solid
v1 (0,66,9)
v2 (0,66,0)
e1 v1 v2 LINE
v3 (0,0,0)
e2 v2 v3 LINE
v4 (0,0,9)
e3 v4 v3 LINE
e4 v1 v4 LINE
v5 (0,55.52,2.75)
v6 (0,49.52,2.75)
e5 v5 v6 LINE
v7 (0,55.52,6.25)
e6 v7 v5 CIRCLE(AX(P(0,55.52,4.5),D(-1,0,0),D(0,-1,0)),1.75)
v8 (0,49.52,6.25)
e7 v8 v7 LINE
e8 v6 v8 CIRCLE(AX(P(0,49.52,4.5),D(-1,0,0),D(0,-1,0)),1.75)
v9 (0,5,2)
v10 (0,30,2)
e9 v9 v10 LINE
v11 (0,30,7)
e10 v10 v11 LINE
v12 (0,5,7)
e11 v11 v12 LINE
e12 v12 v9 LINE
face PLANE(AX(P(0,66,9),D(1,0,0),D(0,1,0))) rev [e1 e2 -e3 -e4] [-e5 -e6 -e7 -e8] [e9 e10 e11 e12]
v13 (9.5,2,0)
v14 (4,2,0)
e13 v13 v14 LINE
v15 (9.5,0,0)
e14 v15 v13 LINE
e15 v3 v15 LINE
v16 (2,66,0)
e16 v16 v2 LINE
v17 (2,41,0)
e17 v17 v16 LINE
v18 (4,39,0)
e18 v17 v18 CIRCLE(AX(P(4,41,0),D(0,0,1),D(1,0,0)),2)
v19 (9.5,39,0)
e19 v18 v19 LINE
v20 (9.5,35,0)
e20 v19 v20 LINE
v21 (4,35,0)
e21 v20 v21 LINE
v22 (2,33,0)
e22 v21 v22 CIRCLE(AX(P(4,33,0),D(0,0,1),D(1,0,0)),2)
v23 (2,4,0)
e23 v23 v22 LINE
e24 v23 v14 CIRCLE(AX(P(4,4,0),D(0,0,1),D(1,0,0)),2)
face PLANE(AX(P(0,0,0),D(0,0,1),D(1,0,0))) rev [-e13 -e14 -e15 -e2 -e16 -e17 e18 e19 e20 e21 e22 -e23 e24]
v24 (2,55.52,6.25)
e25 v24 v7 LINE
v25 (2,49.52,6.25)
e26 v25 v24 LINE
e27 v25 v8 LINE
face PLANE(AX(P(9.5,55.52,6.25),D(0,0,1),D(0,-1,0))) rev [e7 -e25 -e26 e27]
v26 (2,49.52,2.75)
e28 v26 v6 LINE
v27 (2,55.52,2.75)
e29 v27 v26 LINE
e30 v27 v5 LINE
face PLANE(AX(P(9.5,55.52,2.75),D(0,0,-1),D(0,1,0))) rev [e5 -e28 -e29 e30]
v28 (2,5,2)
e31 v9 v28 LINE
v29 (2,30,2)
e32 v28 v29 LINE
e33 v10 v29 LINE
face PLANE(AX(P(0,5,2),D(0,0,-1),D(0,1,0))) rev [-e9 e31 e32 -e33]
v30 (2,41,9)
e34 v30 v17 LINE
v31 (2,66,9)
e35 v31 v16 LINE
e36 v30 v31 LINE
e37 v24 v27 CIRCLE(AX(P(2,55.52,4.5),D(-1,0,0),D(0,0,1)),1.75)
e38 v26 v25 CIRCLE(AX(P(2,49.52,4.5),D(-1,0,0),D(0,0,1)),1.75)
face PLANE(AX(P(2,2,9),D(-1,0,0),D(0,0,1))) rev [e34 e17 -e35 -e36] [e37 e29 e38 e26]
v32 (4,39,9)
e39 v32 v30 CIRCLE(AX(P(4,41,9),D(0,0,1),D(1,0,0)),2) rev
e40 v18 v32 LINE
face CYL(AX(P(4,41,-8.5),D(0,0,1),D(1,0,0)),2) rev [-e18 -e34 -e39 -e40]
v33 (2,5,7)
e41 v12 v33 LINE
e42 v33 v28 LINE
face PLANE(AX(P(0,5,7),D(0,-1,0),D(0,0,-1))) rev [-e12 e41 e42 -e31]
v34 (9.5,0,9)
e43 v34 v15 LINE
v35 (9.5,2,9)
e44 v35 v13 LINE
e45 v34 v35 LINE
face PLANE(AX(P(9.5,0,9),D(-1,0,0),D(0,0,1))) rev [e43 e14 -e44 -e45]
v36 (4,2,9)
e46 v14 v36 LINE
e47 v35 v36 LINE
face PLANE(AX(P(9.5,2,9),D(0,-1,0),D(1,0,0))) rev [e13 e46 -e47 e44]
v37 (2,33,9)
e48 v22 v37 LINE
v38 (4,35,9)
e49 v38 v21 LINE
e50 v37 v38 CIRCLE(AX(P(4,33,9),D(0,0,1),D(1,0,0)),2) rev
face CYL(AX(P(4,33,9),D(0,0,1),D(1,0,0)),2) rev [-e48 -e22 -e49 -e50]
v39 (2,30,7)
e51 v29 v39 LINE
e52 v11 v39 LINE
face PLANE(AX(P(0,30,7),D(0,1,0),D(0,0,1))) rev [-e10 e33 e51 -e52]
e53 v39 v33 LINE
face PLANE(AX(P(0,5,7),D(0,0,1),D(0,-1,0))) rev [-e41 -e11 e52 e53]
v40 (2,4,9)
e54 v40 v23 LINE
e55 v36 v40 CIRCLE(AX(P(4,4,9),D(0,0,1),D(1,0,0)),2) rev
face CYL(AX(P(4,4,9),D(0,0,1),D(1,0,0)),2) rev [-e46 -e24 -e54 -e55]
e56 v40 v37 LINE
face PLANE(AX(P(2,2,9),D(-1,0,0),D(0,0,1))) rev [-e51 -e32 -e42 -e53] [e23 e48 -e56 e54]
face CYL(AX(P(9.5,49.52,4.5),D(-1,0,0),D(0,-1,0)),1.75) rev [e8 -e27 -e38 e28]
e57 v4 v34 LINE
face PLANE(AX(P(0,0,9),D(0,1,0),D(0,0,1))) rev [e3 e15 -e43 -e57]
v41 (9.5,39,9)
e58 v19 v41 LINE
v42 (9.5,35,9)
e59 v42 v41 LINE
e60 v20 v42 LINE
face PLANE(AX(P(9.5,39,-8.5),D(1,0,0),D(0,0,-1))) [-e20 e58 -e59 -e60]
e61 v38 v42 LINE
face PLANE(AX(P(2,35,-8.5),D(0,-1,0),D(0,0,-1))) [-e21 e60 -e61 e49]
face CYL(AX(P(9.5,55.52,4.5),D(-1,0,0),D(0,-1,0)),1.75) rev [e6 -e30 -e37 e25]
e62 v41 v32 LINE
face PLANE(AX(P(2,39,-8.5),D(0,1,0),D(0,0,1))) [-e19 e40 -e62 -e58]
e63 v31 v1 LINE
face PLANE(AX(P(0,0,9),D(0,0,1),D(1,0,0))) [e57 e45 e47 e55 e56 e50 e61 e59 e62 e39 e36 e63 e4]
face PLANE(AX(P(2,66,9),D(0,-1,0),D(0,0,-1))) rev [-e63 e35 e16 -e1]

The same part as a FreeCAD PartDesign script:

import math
import FreeCAD as App
import Part
import Sketcher
from FreeCAD import Vector


def edges_at(feature, points):
    """Names of the edges that pass closest to the given points."""
    edges = feature.Shape.Edges
    near = lambda p: min(range(len(edges)), key=lambda i: edges[i].distToShape(Part.Vertex(*p))[0])
    return sorted({f"Edge{near(p) + 1}" for p in points})


def add_polygon(sketch, points):
    """Adds a closed chain of lines whose ends are joined by coincident constraints."""
    first, n = sketch.GeometryCount, len(points)
    for a, b in zip(points, points[1:] + points[:1]):
        sketch.addGeometry(Part.LineSegment(App.Vector(*a, 0), App.Vector(*b, 0)), False)
    for i in range(n):
        sketch.addConstraint(Sketcher.Constraint("Coincident", first + i, 2, first + (i + 1) % n, 1))

doc = App.newDocument("Part")
body = doc.addObject("PartDesign::Body", "Body")

# Sketch on XY plane
sketch1 = body.newObject("Sketcher::SketchObject", "Sketch")
sketch1.AttachmentSupport = (doc.getObject("XY_Plane"), [""])
sketch1.MapMode = "FlatFace"
add_polygon(sketch1, [(0, 0), (9.5, 0), (9.5, 2), (2, 2), (2, 66), (0, 66)])  # lines 0-5
sketch1.addConstraint([
    Sketcher.Constraint("Horizontal", 0),
    Sketcher.Constraint("Vertical", 1),
    Sketcher.Constraint("Horizontal", 2),
    Sketcher.Constraint("Vertical", 3),
    Sketcher.Constraint("Horizontal", 4),
    Sketcher.Constraint("Vertical", 5),
    Sketcher.Constraint("Coincident", 5, 2, -1, 1),
    Sketcher.Constraint("Equal", 4, 1),
    Sketcher.Constraint("DistanceX", 4, 2, 4, 1, 2.0),
    Sketcher.Constraint("DistanceY", 3, 1, 3, 2, 64.0),
    Sketcher.Constraint("DistanceX", 0, 1, 0, 2, 9.5),
])
pad1 = body.newObject("PartDesign::Pad", "Pad")
pad1.Profile = sketch1
pad1.Length = 9

# Sketch on YZ plane
sketch2 = body.newObject("Sketcher::SketchObject", "Sketch001")
sketch2.AttachmentSupport = (doc.getObject("YZ_Plane"), [""])
sketch2.MapMode = "FlatFace"
sketch2.addGeometry([
    Part.LineSegment(Vector(49.52, 6.25, 0), Vector(55.52, 6.25, 0)),
    Part.ArcOfCircle(Part.Circle(Vector(55.52, 4.5, 0), Vector(0, 0, 1), 1.75), math.radians(-90), math.radians(90)),
    Part.LineSegment(Vector(55.52, 2.75, 0), Vector(49.52, 2.75, 0)),
    Part.ArcOfCircle(Part.Circle(Vector(49.52, 4.5, 0), Vector(0, 0, 1), 1.75), math.radians(90), math.radians(270)),
], False)
sketch2.addConstraint([
    Sketcher.Constraint("Tangent", 0, 2, 1, 2),
    Sketcher.Constraint("Tangent", 1, 1, 2, 1),
    Sketcher.Constraint("Tangent", 2, 2, 3, 2),
    Sketcher.Constraint("Tangent", 3, 1, 0, 1),
    Sketcher.Constraint("Horizontal", 0),
    Sketcher.Constraint("Horizontal", 2),
    Sketcher.Constraint("DistanceX", 0, 1, 0, 2, 6.0),
    Sketcher.Constraint("Radius", 1, 1.75),
    Sketcher.Constraint("DistanceY", -1, 1, 1, 3, 4.5),
    Sketcher.Constraint("DistanceX", -1, 1, 1, 3, 55.52),
])
pocket1 = body.newObject("PartDesign::Pocket", "Pocket")
pocket1.Profile = sketch2
pocket1.Type = "ThroughAll"
pocket1.Reversed = True

# Sketch on YZ plane
sketch3 = body.newObject("Sketcher::SketchObject", "Sketch002")
sketch3.AttachmentSupport = (doc.getObject("YZ_Plane"), [""])
sketch3.MapMode = "FlatFace"
sketch3.AttachmentOffset = App.Placement(Vector(0, 0, 2), App.Rotation())
add_polygon(sketch3, [(30, 7), (5, 7), (5, 2), (30, 2)])  # lines 0-3
sketch3.addConstraint([
    Sketcher.Constraint("Horizontal", 0),
    Sketcher.Constraint("Vertical", 1),
    Sketcher.Constraint("Horizontal", 2),
    Sketcher.Constraint("Vertical", 3),
    Sketcher.Constraint("DistanceX", 0, 2, 0, 1, 25.0),
    Sketcher.Constraint("DistanceY", 1, 2, 1, 1, 5.0),
    Sketcher.Constraint("DistanceX", -1, 1, 0, 2, 5.0),
    Sketcher.Constraint("DistanceY", -1, 1, 0, 2, 7.0),
])
pocket2 = body.newObject("PartDesign::Pocket", "Pocket001")
pocket2.Profile = sketch3
pocket2.Type = "ThroughAll"
doc.recompute()

fillet = body.newObject("PartDesign::Fillet", "Fillet")
fillet.Base = (pocket2, edges_at(pocket2, [(2, 2, 4.5)]))
fillet.Radius = 2

# Sketch on XY plane
sketch4 = body.newObject("Sketcher::SketchObject", "Sketch003")
sketch4.AttachmentSupport = (doc.getObject("XY_Plane"), [""])
sketch4.MapMode = "FlatFace"
sketch4.AttachmentOffset = App.Placement(Vector(0, 0, 9), App.Rotation())
add_polygon(sketch4, [(2, 39), (2, 35), (9.5, 35), (9.5, 39)])  # lines 0-3
sketch4.addConstraint([
    Sketcher.Constraint("Vertical", 0),
    Sketcher.Constraint("Horizontal", 1),
    Sketcher.Constraint("Vertical", 2),
    Sketcher.Constraint("Horizontal", 3),
    Sketcher.Constraint("DistanceY", 0, 2, 0, 1, 4.0),
    Sketcher.Constraint("DistanceX", 1, 1, 1, 2, 7.5),
    Sketcher.Constraint("DistanceX", -1, 1, 0, 2, 2.0),
    Sketcher.Constraint("DistanceY", -1, 1, 0, 2, 35.0),
])
pad2 = body.newObject("PartDesign::Pad", "Pad001")
pad2.Profile = sketch4
pad2.Length = 9
pad2.Reversed = True
doc.recompute()

fillet2 = body.newObject("PartDesign::Fillet", "Fillet001")
fillet2.Base = (pad2, edges_at(pad2, [(2, 39, 4.5), (2, 35, 4.5)]))
fillet2.Radius = 2

doc.recompute()
